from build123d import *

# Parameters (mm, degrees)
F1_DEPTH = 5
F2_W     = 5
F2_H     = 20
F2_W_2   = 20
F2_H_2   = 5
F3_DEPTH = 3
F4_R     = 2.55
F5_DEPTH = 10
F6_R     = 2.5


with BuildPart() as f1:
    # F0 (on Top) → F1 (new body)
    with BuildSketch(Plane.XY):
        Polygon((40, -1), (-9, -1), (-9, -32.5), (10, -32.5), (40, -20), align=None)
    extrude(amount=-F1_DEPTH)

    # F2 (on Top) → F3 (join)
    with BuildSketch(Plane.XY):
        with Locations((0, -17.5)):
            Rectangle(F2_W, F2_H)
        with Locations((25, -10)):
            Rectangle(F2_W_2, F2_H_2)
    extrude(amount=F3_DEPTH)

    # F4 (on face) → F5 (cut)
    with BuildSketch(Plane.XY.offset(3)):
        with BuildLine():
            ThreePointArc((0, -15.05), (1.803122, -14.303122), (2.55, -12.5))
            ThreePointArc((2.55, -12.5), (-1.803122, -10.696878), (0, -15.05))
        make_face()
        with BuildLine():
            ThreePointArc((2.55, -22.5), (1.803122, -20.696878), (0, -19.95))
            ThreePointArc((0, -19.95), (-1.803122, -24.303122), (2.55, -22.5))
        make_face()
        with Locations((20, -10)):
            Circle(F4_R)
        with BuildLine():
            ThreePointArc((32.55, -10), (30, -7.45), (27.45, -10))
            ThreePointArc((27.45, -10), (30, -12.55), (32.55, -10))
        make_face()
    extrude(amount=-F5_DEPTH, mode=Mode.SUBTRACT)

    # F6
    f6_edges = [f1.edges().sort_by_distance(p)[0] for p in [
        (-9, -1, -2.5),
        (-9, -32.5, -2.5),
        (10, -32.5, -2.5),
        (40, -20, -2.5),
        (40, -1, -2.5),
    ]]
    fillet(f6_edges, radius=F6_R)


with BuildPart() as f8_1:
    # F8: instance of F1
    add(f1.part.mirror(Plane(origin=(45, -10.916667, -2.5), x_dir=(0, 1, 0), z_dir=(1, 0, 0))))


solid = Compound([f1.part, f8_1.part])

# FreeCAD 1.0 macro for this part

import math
import FreeCAD as App
import Part
import Sketcher
from FreeCAD import Vector
Q = App.Units.Quantity


def edges_at(feature, points):
    """Names of the edges that pass closest to the given points."""
    edges = feature.Shape.Edges
    near = lambda p: min(range(len(edges)), key=lambda i: edges[i].distToShape(Part.Vertex(*p))[0])
    return sorted({f"Edge{near(p) + 1}" for p in points})

doc = App.newDocument("Part")
body = doc.addObject("PartDesign::Body", "Body")

# Sketch on XY plane
sketch1 = doc.addObject("Sketcher::SketchObject", "Sketch")
body.addObject(sketch1)
sketch1.AttachmentSupport = (doc.XY_Plane, [""])
sketch1.MapMode = "FlatFace"
sketch1.addGeometry([
    Part.LineSegment(Vector(40, -1, 0), Vector(-9, -1, 0)),  # 0
    Part.LineSegment(Vector(-9, -1, 0), Vector(-9, -32, 0)),  # 1
    Part.LineSegment(Vector(-9, -32, 0), Vector(10, -32, 0)),  # 2
    Part.LineSegment(Vector(10, -32, 0), Vector(40, -20, 0)),  # 3
    Part.LineSegment(Vector(40, -20, 0), Vector(40, -1, 0)),  # 4
], False)
sketch1.addConstraint([
    Sketcher.Constraint("Coincident", 0, 2, 1, 1),
    Sketcher.Constraint("Coincident", 1, 2, 2, 1),
    Sketcher.Constraint("Coincident", 2, 2, 3, 1),
    Sketcher.Constraint("Coincident", 3, 2, 4, 1),
    Sketcher.Constraint("Coincident", 4, 2, 0, 1),
    Sketcher.Constraint("Horizontal", 0),
    Sketcher.Constraint("Vertical", 1),
    Sketcher.Constraint("Horizontal", 2),
    Sketcher.Constraint("Vertical", 4),
    Sketcher.Constraint("Equal", 2, 4),
    Sketcher.Constraint("DistanceX", 0, 2, 0, 1, Q("49 mm")),
    Sketcher.Constraint("DistanceX", 2, 1, 2, 2, Q("19 mm")),
    Sketcher.Constraint("DistanceY", 1, 2, 1, 1, Q("31.5 mm")),
    Sketcher.Constraint("DistanceX", 0, 2, -1, 1, Q("9 mm")),
    Sketcher.Constraint("DistanceY", 0, 2, -1, 1, Q("1 mm")),
])
pad1 = doc.addObject("PartDesign::Pad", "Pad")
body.addObject(pad1)
pad1.Profile = sketch1
pad1.Length = 5
pad1.Reversed = True

# Sketch on XY plane
sketch2 = doc.addObject("Sketcher::SketchObject", "Sketch001")
body.addObject(sketch2)
sketch2.AttachmentSupport = (doc.XY_Plane, [""])
sketch2.MapMode = "FlatFace"
sketch2.addGeometry([
    Part.LineSegment(Vector(-2, -8, 0), Vector(-2, -28, 0)),  # 0
    Part.LineSegment(Vector(-2, -28, 0), Vector(2, -28, 0)),  # 1
    Part.LineSegment(Vector(2, -28, 0), Vector(2, -8, 0)),  # 2
    Part.LineSegment(Vector(2, -8, 0), Vector(-2, -8, 0)),  # 3
    Part.LineSegment(Vector(15, -8, 0), Vector(15, -12, 0)),  # 4
    Part.LineSegment(Vector(15, -12, 0), Vector(35, -12, 0)),  # 5
    Part.LineSegment(Vector(35, -12, 0), Vector(35, -8, 0)),  # 6
    Part.LineSegment(Vector(35, -8, 0), Vector(15, -8, 0)),  # 7
], False)
sketch2.addConstraint([
    Sketcher.Constraint("Coincident", 0, 2, 1, 1),
    Sketcher.Constraint("Coincident", 1, 2, 2, 1),
    Sketcher.Constraint("Coincident", 2, 2, 3, 1),
    Sketcher.Constraint("Coincident", 3, 2, 0, 1),
    Sketcher.Constraint("Coincident", 4, 2, 5, 1),
    Sketcher.Constraint("Coincident", 5, 2, 6, 1),
    Sketcher.Constraint("Coincident", 6, 2, 7, 1),
    Sketcher.Constraint("Coincident", 7, 2, 4, 1),
    Sketcher.Constraint("Vertical", 0),
    Sketcher.Constraint("Horizontal", 1),
    Sketcher.Constraint("Vertical", 2),
    Sketcher.Constraint("Horizontal", 3),
    Sketcher.Constraint("Vertical", 4),
    Sketcher.Constraint("Horizontal", 5),
    Sketcher.Constraint("Vertical", 6),
    Sketcher.Constraint("Horizontal", 7),
    Sketcher.Constraint("Horizontal", 3, 2, 6, 2),
    Sketcher.Constraint("Equal", 7, 0),
    Sketcher.Constraint("Equal", 3, 4),
    Sketcher.Constraint("DistanceX", 1, 1, 1, 2, Q("5 mm")),
    Sketcher.Constraint("DistanceX", 5, 1, 5, 2, Q("20 mm")),
    Sketcher.Constraint("DistanceX", -1, 1, 4, 2, Q("15 mm")),
    Sketcher.Constraint("DistanceX", 0, 2, -1, 1, Q("2.5 mm")),
    Sketcher.Constraint("DistanceY", 0, 2, -1, 1, Q("27.5 mm")),
])
pad2 = doc.addObject("PartDesign::Pad", "Pad001")
body.addObject(pad2)
pad2.Profile = sketch2
pad2.Length = 3

# Sketch on XY plane
sketch3 = doc.addObject("Sketcher::SketchObject", "Sketch002")
body.addObject(sketch3)
sketch3.AttachmentSupport = (doc.XY_Plane, [""])
sketch3.MapMode = "FlatFace"
sketch3.AttachmentOffset = App.Placement(Vector(0, 0, 3), App.Rotation())
sketch3.addGeometry([
    Part.ArcOfCircle(Part.Circle(Vector(0, -12.5, 0), Vector(0, 0, 1), 2.6), math.radians(-90), math.radians(0)),  # 0
    Part.ArcOfCircle(Part.Circle(Vector(0, -12.5, 0), Vector(0, 0, 1), 2.5), math.radians(0), math.radians(270)),  # 1
    Part.ArcOfCircle(Part.Circle(Vector(0, -22.5, 0), Vector(0, 0, 1), 2.6), math.radians(0), math.radians(90)),  # 2
    Part.ArcOfCircle(Part.Circle(Vector(0, -22.5, 0), Vector(0, 0, 1), 2.5), math.radians(90), math.radians(360)),  # 3
    Part.Circle(Vector(20, -10, 0), Vector(0, 0, 1), 2.5),  # 4
    Part.Circle(Vector(30, -10, 0), Vector(0, 0, 1), 2.5),  # 5
], False)
sketch3.addConstraint([
    Sketcher.Constraint("Tangent", 0, 1, 1, 2),
    Sketcher.Constraint("Coincident", 1, 1, 0, 2),
    Sketcher.Constraint("Tangent", 2, 1, 3, 2),
    Sketcher.Constraint("Coincident", 3, 1, 2, 2),
    Sketcher.Constraint("Equal", 1, 2),
    Sketcher.Constraint("Equal", 3, 4),
    Sketcher.Constraint("Equal", 4, 5),
    Sketcher.Constraint("PointOnObject", 0, 3, -2),
    Sketcher.Constraint("PointOnObject", 2, 3, -2),
    Sketcher.Constraint("PointOnObject", 0, 1, -2),
    Sketcher.Constraint("PointOnObject", 3, 1, -2),
    Sketcher.Constraint("Horizontal", 4, 3, 5, 3),
    Sketcher.Constraint("Horizontal", 0, 3, 1, 1),
    Sketcher.Constraint("Horizontal", 3, 3, 2, 1),
    Sketcher.Constraint("Diameter", 4, Q("5.1 mm")),
    Sketcher.Constraint("DistanceX", -1, 1, 4, 3, Q("20 mm")),
    Sketcher.Constraint("DistanceY", 4, 3, -1, 1, Q("10 mm")),
    Sketcher.Constraint("DistanceX", -1, 1, 5, 3, Q("30 mm")),
    Sketcher.Constraint("DistanceY", 2, 3, 1, 3, Q("10.000001 mm")),
    Sketcher.Constraint("DistanceY", 0, 3, -1, 1, Q("12.499999 mm")),
])
pocket1 = doc.addObject("PartDesign::Pocket", "Pocket")
body.addObject(pocket1)
pocket1.Profile = sketch3
pocket1.Length = 10
doc.recompute()

fillet = doc.addObject("PartDesign::Fillet", "Fillet")
body.addObject(fillet)
fillet.Base = (pocket1, edges_at(pocket1, [
    (-9, -1, -2.5),
    (-9, -32.5, -2.5),
    (10, -32.5, -2.5),
    (40, -20, -2.5),
    (40, -1, -2.5),
]))
fillet.Radius = 2.5
body2 = doc.addObject("PartDesign::Body", "Body001")
doc.recompute()

mirroring = doc.addObject("Part::Mirroring", "Mirroring")
mirroring.Source = body
mirroring.Base = Vector(45, -10.916667, -2.5)
mirroring.Normal = Vector(1, 0, 0)
body2.BaseFeature = mirroring
doc.recompute()
mirroring.Visibility = False

doc.recompute()
